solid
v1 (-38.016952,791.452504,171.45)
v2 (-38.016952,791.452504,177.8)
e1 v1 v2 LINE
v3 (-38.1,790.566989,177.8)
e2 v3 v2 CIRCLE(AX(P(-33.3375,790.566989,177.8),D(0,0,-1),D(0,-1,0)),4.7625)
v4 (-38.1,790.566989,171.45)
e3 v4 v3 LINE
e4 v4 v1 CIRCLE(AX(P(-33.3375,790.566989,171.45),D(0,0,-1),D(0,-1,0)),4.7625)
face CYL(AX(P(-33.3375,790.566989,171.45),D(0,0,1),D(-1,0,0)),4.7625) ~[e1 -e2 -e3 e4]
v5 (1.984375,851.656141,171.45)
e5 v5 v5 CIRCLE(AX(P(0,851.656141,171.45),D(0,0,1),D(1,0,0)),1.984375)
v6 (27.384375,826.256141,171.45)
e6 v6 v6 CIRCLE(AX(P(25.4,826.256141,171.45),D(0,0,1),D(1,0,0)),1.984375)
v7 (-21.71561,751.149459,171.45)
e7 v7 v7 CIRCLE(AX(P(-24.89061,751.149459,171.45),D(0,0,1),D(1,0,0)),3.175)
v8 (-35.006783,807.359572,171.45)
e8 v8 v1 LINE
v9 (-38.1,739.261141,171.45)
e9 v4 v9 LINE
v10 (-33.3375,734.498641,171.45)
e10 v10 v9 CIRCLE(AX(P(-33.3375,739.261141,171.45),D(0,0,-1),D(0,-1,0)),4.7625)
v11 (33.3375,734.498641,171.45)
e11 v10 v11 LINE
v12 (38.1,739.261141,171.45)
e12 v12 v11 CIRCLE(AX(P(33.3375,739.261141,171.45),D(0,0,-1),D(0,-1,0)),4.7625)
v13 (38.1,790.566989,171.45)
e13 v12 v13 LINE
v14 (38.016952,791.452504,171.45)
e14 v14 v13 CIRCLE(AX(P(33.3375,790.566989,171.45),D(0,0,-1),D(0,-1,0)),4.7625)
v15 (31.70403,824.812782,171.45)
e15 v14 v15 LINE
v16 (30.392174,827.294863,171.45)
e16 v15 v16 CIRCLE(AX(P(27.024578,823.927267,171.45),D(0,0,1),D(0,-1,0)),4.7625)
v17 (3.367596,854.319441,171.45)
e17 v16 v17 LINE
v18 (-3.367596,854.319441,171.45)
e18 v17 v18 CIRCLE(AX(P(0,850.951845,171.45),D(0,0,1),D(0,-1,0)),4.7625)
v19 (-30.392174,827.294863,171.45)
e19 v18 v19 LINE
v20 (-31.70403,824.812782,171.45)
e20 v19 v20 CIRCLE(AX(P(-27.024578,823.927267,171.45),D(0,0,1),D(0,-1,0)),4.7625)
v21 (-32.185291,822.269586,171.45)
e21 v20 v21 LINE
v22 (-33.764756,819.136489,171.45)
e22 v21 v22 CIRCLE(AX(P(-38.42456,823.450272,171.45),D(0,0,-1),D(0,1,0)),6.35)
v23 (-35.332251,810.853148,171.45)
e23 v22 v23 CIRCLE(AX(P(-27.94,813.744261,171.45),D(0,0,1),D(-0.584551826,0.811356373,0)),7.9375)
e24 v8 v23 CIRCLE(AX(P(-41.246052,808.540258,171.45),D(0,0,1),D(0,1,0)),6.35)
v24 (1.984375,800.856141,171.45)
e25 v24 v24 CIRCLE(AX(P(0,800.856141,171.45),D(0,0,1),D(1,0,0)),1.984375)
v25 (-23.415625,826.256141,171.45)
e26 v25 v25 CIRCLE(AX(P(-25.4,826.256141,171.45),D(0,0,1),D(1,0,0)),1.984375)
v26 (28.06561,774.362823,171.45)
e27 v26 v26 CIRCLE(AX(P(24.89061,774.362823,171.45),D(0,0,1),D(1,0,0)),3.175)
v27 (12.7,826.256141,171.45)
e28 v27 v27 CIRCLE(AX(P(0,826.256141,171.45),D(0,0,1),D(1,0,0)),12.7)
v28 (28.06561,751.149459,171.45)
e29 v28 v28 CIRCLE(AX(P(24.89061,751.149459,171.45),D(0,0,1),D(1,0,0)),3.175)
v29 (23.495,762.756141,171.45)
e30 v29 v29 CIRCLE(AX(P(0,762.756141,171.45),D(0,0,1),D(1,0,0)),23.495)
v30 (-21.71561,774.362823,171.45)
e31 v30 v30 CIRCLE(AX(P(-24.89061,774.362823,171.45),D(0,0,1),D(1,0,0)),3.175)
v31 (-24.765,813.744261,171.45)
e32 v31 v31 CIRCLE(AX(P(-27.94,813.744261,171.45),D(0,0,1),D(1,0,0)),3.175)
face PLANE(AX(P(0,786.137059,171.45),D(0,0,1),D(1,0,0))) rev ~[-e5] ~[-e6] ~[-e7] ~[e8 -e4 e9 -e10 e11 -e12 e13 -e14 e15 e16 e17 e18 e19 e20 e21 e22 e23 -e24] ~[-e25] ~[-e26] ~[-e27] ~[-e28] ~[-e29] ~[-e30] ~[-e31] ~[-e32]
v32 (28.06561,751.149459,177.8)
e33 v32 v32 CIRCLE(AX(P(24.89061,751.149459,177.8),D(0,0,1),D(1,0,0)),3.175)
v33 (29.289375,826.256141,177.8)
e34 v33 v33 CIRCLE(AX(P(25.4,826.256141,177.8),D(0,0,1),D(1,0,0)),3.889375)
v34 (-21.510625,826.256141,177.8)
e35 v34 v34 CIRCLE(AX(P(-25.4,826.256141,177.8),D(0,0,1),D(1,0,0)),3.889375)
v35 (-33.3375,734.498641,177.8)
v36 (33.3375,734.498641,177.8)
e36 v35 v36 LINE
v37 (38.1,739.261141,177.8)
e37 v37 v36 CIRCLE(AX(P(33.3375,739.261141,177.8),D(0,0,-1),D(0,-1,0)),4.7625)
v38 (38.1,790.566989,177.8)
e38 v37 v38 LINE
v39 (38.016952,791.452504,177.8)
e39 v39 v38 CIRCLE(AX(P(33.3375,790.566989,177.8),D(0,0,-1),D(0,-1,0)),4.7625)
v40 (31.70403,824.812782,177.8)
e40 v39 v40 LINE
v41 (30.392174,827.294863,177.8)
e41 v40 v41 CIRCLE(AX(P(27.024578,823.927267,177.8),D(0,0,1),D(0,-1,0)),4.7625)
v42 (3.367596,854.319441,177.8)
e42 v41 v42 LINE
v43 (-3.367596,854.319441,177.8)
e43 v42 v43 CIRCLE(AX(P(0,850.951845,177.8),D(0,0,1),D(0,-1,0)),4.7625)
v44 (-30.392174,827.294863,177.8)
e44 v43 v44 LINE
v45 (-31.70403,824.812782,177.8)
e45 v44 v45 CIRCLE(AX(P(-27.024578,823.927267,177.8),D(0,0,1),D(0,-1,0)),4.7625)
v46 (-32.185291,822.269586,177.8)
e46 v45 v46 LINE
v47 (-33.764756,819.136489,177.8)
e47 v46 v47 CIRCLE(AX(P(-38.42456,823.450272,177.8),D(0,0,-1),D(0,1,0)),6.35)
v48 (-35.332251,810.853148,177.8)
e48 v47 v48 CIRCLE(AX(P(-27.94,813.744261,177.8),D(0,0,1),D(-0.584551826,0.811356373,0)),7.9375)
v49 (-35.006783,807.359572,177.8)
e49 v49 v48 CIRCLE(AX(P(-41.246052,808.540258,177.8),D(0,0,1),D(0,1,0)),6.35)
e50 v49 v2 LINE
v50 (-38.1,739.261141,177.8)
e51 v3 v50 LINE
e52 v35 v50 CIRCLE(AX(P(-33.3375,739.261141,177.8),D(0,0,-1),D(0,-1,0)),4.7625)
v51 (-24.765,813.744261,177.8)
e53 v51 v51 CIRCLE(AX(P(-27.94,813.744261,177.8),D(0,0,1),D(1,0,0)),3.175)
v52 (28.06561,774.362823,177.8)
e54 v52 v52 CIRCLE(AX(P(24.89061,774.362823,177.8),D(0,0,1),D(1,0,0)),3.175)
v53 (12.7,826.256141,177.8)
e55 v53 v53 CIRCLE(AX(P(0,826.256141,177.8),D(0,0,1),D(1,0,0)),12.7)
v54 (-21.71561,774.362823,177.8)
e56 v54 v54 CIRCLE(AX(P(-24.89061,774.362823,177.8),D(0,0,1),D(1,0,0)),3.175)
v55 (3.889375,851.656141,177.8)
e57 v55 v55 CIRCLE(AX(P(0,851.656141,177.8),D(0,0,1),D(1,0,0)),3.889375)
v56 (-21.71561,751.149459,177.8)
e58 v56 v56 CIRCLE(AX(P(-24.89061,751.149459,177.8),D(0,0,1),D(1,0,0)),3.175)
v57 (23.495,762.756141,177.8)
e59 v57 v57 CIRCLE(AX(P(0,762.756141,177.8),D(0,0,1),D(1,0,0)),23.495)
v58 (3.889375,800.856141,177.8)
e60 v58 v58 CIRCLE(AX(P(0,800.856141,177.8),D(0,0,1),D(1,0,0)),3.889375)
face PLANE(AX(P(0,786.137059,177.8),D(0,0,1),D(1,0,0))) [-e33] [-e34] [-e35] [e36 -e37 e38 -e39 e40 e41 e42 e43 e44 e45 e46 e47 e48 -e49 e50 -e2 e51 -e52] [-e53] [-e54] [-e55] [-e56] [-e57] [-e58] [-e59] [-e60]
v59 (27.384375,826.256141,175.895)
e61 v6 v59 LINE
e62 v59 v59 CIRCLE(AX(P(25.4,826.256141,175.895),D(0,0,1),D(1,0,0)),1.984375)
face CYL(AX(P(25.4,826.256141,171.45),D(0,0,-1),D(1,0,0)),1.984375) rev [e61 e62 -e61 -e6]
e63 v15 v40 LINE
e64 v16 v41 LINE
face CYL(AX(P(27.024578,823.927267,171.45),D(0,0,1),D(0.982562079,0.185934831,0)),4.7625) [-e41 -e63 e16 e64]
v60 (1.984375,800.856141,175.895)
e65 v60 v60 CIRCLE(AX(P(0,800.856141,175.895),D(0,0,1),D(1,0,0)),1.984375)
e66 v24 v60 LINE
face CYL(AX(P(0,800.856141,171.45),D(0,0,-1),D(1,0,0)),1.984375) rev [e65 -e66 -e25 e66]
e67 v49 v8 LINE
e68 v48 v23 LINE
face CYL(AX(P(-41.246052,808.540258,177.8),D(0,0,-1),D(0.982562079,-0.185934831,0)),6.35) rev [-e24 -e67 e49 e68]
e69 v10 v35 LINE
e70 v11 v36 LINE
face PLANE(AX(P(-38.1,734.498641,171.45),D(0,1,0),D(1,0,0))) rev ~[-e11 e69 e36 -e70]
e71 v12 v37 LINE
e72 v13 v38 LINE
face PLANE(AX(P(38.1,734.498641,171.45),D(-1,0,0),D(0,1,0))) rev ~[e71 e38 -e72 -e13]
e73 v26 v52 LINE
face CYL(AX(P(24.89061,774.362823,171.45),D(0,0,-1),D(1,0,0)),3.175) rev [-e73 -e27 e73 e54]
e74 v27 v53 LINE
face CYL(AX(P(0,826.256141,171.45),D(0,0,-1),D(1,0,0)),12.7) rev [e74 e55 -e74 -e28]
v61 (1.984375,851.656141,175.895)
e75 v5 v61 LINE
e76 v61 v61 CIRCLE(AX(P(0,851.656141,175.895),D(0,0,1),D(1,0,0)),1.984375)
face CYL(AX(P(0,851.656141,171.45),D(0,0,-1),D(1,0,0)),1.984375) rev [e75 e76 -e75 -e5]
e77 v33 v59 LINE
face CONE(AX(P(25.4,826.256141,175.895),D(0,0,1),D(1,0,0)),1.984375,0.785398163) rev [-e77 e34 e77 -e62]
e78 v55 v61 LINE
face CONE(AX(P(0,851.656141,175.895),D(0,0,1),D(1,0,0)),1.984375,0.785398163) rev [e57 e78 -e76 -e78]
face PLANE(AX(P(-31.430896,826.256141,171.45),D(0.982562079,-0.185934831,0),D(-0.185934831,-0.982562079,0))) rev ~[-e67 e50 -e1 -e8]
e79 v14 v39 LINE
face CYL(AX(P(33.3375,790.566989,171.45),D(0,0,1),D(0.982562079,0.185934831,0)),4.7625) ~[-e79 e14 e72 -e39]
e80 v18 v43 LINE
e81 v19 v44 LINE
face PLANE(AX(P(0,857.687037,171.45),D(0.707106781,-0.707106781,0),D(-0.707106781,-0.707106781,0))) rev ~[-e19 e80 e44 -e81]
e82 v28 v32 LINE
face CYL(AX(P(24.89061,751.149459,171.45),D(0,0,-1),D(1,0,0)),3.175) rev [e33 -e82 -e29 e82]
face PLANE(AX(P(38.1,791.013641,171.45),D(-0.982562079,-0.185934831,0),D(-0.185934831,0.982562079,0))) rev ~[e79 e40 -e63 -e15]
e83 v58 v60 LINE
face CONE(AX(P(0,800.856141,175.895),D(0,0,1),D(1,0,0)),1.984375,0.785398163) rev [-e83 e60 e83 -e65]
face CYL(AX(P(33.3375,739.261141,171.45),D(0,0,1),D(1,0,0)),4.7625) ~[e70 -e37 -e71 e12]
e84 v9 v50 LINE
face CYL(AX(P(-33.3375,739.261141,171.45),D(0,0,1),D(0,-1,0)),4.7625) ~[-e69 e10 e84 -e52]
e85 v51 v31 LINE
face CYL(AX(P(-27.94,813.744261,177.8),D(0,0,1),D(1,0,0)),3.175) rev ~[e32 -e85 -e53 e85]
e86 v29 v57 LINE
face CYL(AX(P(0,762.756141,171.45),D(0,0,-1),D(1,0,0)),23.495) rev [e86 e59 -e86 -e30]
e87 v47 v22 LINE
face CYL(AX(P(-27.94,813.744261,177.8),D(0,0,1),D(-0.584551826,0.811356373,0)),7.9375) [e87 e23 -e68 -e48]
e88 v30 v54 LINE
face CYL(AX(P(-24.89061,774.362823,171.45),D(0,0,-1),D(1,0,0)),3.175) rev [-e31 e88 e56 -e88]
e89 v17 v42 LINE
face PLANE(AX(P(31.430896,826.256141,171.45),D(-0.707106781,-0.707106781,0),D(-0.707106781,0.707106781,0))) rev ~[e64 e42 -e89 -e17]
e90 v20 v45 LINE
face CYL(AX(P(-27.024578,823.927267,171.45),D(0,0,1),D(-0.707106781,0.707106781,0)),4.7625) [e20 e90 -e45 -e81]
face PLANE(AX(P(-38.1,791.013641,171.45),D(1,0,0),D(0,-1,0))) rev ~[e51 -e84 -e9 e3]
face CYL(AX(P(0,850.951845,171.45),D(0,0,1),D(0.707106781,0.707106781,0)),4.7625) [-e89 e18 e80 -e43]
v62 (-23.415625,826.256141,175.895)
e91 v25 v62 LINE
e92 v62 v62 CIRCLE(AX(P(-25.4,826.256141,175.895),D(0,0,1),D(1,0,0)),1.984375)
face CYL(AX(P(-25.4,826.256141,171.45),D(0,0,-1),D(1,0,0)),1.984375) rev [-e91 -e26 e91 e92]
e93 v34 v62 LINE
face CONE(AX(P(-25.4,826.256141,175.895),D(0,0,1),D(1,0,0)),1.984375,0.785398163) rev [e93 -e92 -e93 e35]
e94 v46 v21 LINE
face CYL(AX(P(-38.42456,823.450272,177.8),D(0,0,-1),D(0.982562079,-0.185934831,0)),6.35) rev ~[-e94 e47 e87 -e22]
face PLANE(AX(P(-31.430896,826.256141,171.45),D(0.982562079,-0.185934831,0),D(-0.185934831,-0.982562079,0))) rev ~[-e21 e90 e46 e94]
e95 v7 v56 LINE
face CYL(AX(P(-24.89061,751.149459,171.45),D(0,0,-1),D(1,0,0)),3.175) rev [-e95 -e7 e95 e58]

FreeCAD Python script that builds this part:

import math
import FreeCAD as App
import Part
import Sketcher
from FreeCAD import Vector
Q = App.Units.Quantity


def edges_at(feature, points):
    """Names of the edges that pass closest to the given points."""
    edges = feature.Shape.Edges
    near = lambda p: min(range(len(edges)), key=lambda i: edges[i].distToShape(Part.Vertex(*p))[0])
    return sorted({f"Edge{near(p) + 1}" for p in points})


def add_polygon(sketch, points):
    """Adds a closed chain of lines whose ends are joined by coincident constraints."""
    first, n = sketch.GeometryCount, len(points)
    for a, b in zip(points, points[1:] + points[:1]):
        sketch.addGeometry(Part.LineSegment(App.Vector(*a, 0), App.Vector(*b, 0)), False)
    for i in range(n):
        sketch.addConstraint(Sketcher.Constraint("Coincident", first + i, 2, first + (i + 1) % n, 1))

doc = App.newDocument("Part")
body = doc.addObject("PartDesign::Body", "Body")

sketch1 = doc.addObject("Sketcher::SketchObject", "Sketch")
body.addObject(sketch1)
sketch1.AttachmentSupport = (doc.XY_Plane, [""])
sketch1.MapMode = "FlatFace"
sketch1.AttachmentOffset = App.Placement(Vector(0, 0, 6.75 * 25.4), App.Rotation())
add_polygon(sketch1, [(38.1, 791), (31.4, 826.3), (0, 857.7), (-31.4, 826.3), (-38.1, 791), (-38.1, 734.5), (38.1, 734.5)])
sketch1.addGeometry(Part.Circle(Vector(-24.9, 751.1, 0), Vector(0, 0, 1), 3.2), False)
sketch1.addGeometry(Part.Circle(Vector(-24.9, 774.4, 0), Vector(0, 0, 1), 3.2), False)
sketch1.addGeometry(Part.Circle(Vector(0, 762.8, 0), Vector(0, 0, 1), 23.5), False)
sketch1.addGeometry(Part.Circle(Vector(24.9, 751.1, 0), Vector(0, 0, 1), 3.2), False)
sketch1.addGeometry(Part.Circle(Vector(24.9, 774.4, 0), Vector(0, 0, 1), 3.2), False)
sketch1.addGeometry(Part.Circle(Vector(-25.4, 826.3, 0), Vector(0, 0, 1), 2), False)
sketch1.addGeometry(Part.Circle(Vector(0, 800.9, 0), Vector(0, 0, 1), 2), False)
sketch1.addGeometry(Part.Circle(Vector(0, 826.3, 0), Vector(0, 0, 1), 12.7), False)
sketch1.addGeometry(Part.Circle(Vector(0, 851.7, 0), Vector(0, 0, 1), 2), False)
sketch1.addGeometry(Part.Circle(Vector(25.4, 826.3, 0), Vector(0, 0, 1), 2), False)
sketch1.addConstraint(Sketcher.Constraint("Vertical", 4))
sketch1.addConstraint(Sketcher.Constraint("Horizontal", 5))
sketch1.addConstraint(Sketcher.Constraint("Vertical", 6))
sketch1.addConstraint(Sketcher.Constraint("Equal", 7, 8))
sketch1.addConstraint(Sketcher.Constraint("Equal", 8, 10))
sketch1.addConstraint(Sketcher.Constraint("Equal", 10, 11))
sketch1.addConstraint(Sketcher.Constraint("Equal", 12, 13))
sketch1.addConstraint(Sketcher.Constraint("Equal", 13, 15))
sketch1.addConstraint(Sketcher.Constraint("Equal", 15, 16))
sketch1.addConstraint(Sketcher.Constraint("Symmetric", 7, 3, 10, 3, -2))
sketch1.addConstraint(Sketcher.Constraint("Symmetric", 8, 3, 11, 3, -2))
sketch1.addConstraint(Sketcher.Constraint("Symmetric", 12, 3, 16, 3, -2))
sketch1.addConstraint(Sketcher.Constraint("Symmetric", 0, 2, 2, 2, -2))
sketch1.addConstraint(Sketcher.Constraint("Symmetric", 3, 2, 6, 2, -2))
sketch1.addConstraint(Sketcher.Constraint("PointOnObject", 9, 3, -2))
sketch1.addConstraint(Sketcher.Constraint("PointOnObject", 13, 3, -2))
sketch1.addConstraint(Sketcher.Constraint("PointOnObject", 14, 3, -2))
sketch1.addConstraint(Sketcher.Constraint("PointOnObject", 15, 3, -2))
sketch1.addConstraint(Sketcher.Constraint("PointOnObject", 1, 2, -2))
sketch1.addConstraint(Sketcher.Constraint("Perpendicular", 1, 2))
sketch1.addConstraint(Sketcher.Constraint("Horizontal", 12, 3, 14, 3))
sketch1.addConstraint(Sketcher.Constraint("Horizontal", 16, 3, 0, 2))
sketch1.addConstraint(Sketcher.Constraint("Vertical", 7, 3, 8, 3))
sketch1.addConstraint(Sketcher.Constraint("Diameter", 14, Q("1 in")))
sketch1.addConstraint(Sketcher.Constraint("Diameter", 7, Q("0.25 in")))
sketch1.addConstraint(Sketcher.Constraint("Diameter", 9, Q("1.85 in")))
sketch1.addConstraint(Sketcher.Constraint("DistanceX", 5, 1, 5, 2, Q("3 in")))
sketch1.addConstraint(Sketcher.Constraint("Diameter", 12, Q("0.15625 in")))
sketch1.addConstraint(Sketcher.Constraint("DistanceX", 12, 3, -1, 1, Q("1 in")))
sketch1.addConstraint(Sketcher.Constraint("DistanceY", 13, 3, 12, 3, Q("1 in")))
sketch1.addConstraint(Sketcher.Constraint("DistanceY", 14, 3, 15, 3, Q("1 in")))
sketch1.addConstraint(Sketcher.Constraint("DistanceY", 9, 3, 12, 3, Q("2.5 in")))
sketch1.addConstraint(Sketcher.Constraint("Distance", 1, Q("1.75 in")))
sketch1.addConstraint(Sketcher.Constraint("DistanceY", 4, 2, 4, 1, Q("2.225 in")))
sketch1.addConstraint(Sketcher.Constraint("DistanceY", 3, 2, 2, 2, Q("1.3875 in")))
sketch1.addConstraint(Sketcher.Constraint("DistanceX", 7, 3, -1, 1, 24.89061))
sketch1.addConstraint(Sketcher.Constraint("DistanceY", -1, 1, 7, 3, 751.149459))
sketch1.addConstraint(Sketcher.Constraint("DistanceY", -1, 1, 9, 3, 762.756141))
sketch1.addConstraint(Sketcher.Constraint("DistanceY", -1, 1, 8, 3, 774.362823))
pad1 = doc.addObject("PartDesign::Pad", "Pad")
body.addObject(pad1)
pad1.Profile = sketch1
pad1.Length = Q("0.25 in")
doc.recompute()

fillet = doc.addObject("PartDesign::Fillet", "Fillet")
body.addObject(fillet)
fillet.Base = (pad1, edges_at(pad1, [
    (0, 857.687, 174.625),
    (31.431, 826.256, 174.625),
    (38.1, 791.014, 174.625),
    (38.1, 734.499, 174.625),
    (-38.1, 734.499, 174.625),
    (-38.1, 791.014, 174.625),
    (-31.431, 826.256, 174.625),
]))
fillet.Radius = Q("0.1875 in")

sketch2 = doc.addObject("Sketcher::SketchObject", "Sketch001")
body.addObject(sketch2)
sketch2.AttachmentSupport = (doc.XY_Plane, [""])
sketch2.MapMode = "FlatFace"
sketch2.AttachmentOffset = App.Placement(Vector(0, 0, 7 * 25.4), App.Rotation())
sketch2.addGeometry(Part.Circle(Vector(-27.9, 813.7, 0), Vector(0, 0, 1), 3.2), False)
sketch2.addConstraint(Sketcher.Constraint("Diameter", 0, Q("0.25 in")))
sketch2.addConstraint(Sketcher.Constraint("DistanceX", 0, 3, -1, 1, Q("1.1 in")))
sketch2.addConstraint(Sketcher.Constraint("DistanceY", -1, 1, 0, 3, 813.744261))
pocket1 = doc.addObject("PartDesign::Pocket", "Pocket")
body.addObject(pocket1)
pocket1.Profile = sketch2
pocket1.Length = Q("0.25 in")

sketch3 = doc.addObject("Sketcher::SketchObject", "Sketch002")
body.addObject(sketch3)
sketch3.AttachmentSupport = (doc.XY_Plane, [""])
sketch3.MapMode = "FlatFace"
sketch3.AttachmentOffset = App.Placement(Vector(0, 0, 7 * 25.4), App.Rotation())
sketch3.addGeometry(Part.ArcOfCircle(Part.Circle(Vector(-27.9, 813.7, 0), Vector(0, 0, 1), 7.9), math.radians(-147), math.radians(0)), False)
sketch3.addGeometry(Part.ArcOfCircle(Part.Circle(Vector(-27.9, 813.7, 0), Vector(0, 0, 1), 7.9), math.radians(0), math.radians(126)), False)
sketch3.addGeometry(Part.ArcOfCircle(Part.Circle(Vector(-27.9, 813.7, 0), Vector(0, 0, 1), 7.9), math.radians(126), math.radians(213)), False)
sketch3.addGeometry(Part.Circle(Vector(-27.9, 813.7, 0), Vector(0, 0, 1), 3.2), False)
sketch3.addConstraint(Sketcher.Constraint("Tangent", 0, 2, 1, 1))
sketch3.addConstraint(Sketcher.Constraint("Tangent", 1, 2, 2, 1))
sketch3.addConstraint(Sketcher.Constraint("Tangent", 2, 2, 0, 1))
sketch3.addConstraint(Sketcher.Constraint("Coincident", 3, 3, 0, 3))
sketch3.addConstraint(Sketcher.Constraint("Horizontal", 3, 3, 0, 2))
sketch3.addConstraint(Sketcher.Constraint("Diameter", 3, Q("0.25 in")))
sketch3.addConstraint(Sketcher.Constraint("Radius", 0, Q("0.3125 in")))
sketch3.addConstraint(Sketcher.Constraint("DistanceX", 0, 3, -1, 1, Q("1.1 in")))
sketch3.addConstraint(Sketcher.Constraint("DistanceY", -1, 1, 1, 2, 820.184402))
sketch3.addConstraint(Sketcher.Constraint("DistanceY", -1, 1, 0, 3, 813.744261))
sketch3.addConstraint(Sketcher.Constraint("DistanceX", 2, 2, -1, 1, 34.612194))
pad2 = doc.addObject("PartDesign::Pad", "Pad001")
body.addObject(pad2)
pad2.Profile = sketch3
pad2.Length = Q("0.25 in")
pad2.Reversed = True
doc.recompute()

fillet2 = doc.addObject("PartDesign::Fillet", "Fillet001")
body.addObject(fillet2)
fillet2.Base = (pad2, edges_at(pad2, [(-32.58, 820.184, 174.625), (-34.612, 809.445, 174.625)]))
fillet2.Radius = Q("0.25 in")
doc.recompute()

chamfer = doc.addObject("PartDesign::Chamfer", "Chamfer")
body.addObject(chamfer)
chamfer.Base = (fillet2, edges_at(fillet2, [
    (-27.384, 826.256, 177.8),
    (-1.984, 851.656, 177.8),
    (23.416, 826.256, 177.8),
    (-1.984, 800.856, 177.8),
]))
chamfer.Size = Q("0.075 in")

doc.recompute()
